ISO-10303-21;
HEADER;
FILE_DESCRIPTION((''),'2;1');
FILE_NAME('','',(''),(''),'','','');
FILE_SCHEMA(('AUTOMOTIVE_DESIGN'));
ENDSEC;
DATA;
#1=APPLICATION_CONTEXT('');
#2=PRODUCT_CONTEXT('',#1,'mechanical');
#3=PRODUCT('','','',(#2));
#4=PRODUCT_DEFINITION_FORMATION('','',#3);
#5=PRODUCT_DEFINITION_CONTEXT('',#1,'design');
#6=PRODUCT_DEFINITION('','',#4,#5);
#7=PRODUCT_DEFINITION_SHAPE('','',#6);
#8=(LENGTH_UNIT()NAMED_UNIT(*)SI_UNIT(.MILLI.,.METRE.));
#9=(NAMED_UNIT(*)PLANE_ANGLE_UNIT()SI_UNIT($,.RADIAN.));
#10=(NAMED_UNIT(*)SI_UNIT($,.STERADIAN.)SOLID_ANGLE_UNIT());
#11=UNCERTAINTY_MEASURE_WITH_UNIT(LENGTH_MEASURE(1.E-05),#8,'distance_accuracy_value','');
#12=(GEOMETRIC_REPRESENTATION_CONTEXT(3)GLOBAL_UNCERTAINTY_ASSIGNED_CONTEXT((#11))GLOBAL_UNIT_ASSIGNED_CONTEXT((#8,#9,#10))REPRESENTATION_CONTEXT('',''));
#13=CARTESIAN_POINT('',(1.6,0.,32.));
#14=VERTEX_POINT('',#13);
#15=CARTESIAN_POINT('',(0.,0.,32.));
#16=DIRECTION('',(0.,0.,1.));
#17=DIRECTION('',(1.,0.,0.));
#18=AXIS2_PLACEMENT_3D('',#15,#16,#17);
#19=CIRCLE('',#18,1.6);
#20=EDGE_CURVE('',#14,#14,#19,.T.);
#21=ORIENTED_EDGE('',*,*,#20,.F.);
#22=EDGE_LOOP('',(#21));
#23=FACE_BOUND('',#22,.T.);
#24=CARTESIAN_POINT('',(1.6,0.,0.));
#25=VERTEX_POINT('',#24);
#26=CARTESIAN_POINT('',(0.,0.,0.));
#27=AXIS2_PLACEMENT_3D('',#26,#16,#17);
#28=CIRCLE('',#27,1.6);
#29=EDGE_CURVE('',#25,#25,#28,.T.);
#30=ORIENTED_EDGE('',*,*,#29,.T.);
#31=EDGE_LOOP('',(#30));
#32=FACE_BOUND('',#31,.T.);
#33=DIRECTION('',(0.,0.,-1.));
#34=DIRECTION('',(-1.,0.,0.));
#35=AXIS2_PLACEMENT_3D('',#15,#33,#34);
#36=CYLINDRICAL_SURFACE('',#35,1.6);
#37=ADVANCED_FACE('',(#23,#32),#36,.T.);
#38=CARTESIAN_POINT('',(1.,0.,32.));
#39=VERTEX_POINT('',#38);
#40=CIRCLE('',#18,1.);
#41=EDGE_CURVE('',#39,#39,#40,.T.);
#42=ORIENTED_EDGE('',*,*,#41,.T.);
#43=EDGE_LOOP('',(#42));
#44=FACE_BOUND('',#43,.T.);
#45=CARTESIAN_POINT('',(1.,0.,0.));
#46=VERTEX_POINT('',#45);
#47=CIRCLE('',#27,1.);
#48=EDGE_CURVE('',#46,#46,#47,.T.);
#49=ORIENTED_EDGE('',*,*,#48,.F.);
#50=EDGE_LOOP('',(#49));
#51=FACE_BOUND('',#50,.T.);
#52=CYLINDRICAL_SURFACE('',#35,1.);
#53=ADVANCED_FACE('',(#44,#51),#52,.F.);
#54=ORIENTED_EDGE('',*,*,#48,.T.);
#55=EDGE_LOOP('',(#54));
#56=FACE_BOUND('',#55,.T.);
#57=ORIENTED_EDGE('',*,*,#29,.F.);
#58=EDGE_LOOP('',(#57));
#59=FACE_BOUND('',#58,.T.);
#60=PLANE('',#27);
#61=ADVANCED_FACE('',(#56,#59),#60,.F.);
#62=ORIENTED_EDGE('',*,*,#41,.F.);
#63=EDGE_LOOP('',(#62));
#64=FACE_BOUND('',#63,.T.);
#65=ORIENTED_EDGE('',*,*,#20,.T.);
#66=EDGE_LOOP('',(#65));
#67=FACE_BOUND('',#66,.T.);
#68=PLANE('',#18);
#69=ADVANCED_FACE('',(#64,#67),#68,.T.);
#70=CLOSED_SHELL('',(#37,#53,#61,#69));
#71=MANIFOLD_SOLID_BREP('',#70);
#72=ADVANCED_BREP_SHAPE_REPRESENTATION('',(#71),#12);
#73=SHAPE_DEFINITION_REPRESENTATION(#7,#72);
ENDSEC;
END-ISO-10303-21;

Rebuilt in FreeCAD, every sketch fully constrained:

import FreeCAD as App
import Part
import Sketcher

V = App.Vector

doc = App.newDocument("Part")
params = doc.addObject("Spreadsheet::Sheet", "Params")
for row, (alias, value) in enumerate([
    ("sketch1_diameter", "2 mm"),
    ("sketch1_diameter2", "3.2 mm"),
    ("pad1_length", "32 mm"),
], start=1):
    params.set(f"A{row}", alias)
    params.set(f"B{row}", "=" + value)
    params.setAlias(f"B{row}", alias)

body = doc.addObject("PartDesign::Body", "Body")

# Sketch on XY plane
sketch1 = body.newObject("Sketcher::SketchObject", "Sketch")
sketch1.AttachmentSupport = (doc.getObject("XY_Plane"), [""])
sketch1.MapMode = "FlatFace"
sketch1.addGeometry(Part.Circle(V(0, 0, 0), V(0, 0, 1), 1.6), False)
sketch1.addGeometry(Part.Circle(V(0, 0, 0), V(0, 0, 1), 1), False)
sketch1.addConstraint(Sketcher.Constraint("Coincident", 0, 3, -1, 1))
sketch1.addConstraint(Sketcher.Constraint("Coincident", 1, 3, -1, 1))
sketch1.addConstraint(Sketcher.Constraint("Diameter", 1, 2.0))
sketch1.addConstraint(Sketcher.Constraint("Diameter", 0, 3.2))
sketch1.setExpression("Constraints[2]", "Params.sketch1_diameter")
sketch1.setExpression("Constraints[3]", "Params.sketch1_diameter2")
pad1 = body.newObject("PartDesign::Pad", "Pad")
pad1.Profile = sketch1
pad1.setExpression("Length", "Params.pad1_length")

doc.recompute()
